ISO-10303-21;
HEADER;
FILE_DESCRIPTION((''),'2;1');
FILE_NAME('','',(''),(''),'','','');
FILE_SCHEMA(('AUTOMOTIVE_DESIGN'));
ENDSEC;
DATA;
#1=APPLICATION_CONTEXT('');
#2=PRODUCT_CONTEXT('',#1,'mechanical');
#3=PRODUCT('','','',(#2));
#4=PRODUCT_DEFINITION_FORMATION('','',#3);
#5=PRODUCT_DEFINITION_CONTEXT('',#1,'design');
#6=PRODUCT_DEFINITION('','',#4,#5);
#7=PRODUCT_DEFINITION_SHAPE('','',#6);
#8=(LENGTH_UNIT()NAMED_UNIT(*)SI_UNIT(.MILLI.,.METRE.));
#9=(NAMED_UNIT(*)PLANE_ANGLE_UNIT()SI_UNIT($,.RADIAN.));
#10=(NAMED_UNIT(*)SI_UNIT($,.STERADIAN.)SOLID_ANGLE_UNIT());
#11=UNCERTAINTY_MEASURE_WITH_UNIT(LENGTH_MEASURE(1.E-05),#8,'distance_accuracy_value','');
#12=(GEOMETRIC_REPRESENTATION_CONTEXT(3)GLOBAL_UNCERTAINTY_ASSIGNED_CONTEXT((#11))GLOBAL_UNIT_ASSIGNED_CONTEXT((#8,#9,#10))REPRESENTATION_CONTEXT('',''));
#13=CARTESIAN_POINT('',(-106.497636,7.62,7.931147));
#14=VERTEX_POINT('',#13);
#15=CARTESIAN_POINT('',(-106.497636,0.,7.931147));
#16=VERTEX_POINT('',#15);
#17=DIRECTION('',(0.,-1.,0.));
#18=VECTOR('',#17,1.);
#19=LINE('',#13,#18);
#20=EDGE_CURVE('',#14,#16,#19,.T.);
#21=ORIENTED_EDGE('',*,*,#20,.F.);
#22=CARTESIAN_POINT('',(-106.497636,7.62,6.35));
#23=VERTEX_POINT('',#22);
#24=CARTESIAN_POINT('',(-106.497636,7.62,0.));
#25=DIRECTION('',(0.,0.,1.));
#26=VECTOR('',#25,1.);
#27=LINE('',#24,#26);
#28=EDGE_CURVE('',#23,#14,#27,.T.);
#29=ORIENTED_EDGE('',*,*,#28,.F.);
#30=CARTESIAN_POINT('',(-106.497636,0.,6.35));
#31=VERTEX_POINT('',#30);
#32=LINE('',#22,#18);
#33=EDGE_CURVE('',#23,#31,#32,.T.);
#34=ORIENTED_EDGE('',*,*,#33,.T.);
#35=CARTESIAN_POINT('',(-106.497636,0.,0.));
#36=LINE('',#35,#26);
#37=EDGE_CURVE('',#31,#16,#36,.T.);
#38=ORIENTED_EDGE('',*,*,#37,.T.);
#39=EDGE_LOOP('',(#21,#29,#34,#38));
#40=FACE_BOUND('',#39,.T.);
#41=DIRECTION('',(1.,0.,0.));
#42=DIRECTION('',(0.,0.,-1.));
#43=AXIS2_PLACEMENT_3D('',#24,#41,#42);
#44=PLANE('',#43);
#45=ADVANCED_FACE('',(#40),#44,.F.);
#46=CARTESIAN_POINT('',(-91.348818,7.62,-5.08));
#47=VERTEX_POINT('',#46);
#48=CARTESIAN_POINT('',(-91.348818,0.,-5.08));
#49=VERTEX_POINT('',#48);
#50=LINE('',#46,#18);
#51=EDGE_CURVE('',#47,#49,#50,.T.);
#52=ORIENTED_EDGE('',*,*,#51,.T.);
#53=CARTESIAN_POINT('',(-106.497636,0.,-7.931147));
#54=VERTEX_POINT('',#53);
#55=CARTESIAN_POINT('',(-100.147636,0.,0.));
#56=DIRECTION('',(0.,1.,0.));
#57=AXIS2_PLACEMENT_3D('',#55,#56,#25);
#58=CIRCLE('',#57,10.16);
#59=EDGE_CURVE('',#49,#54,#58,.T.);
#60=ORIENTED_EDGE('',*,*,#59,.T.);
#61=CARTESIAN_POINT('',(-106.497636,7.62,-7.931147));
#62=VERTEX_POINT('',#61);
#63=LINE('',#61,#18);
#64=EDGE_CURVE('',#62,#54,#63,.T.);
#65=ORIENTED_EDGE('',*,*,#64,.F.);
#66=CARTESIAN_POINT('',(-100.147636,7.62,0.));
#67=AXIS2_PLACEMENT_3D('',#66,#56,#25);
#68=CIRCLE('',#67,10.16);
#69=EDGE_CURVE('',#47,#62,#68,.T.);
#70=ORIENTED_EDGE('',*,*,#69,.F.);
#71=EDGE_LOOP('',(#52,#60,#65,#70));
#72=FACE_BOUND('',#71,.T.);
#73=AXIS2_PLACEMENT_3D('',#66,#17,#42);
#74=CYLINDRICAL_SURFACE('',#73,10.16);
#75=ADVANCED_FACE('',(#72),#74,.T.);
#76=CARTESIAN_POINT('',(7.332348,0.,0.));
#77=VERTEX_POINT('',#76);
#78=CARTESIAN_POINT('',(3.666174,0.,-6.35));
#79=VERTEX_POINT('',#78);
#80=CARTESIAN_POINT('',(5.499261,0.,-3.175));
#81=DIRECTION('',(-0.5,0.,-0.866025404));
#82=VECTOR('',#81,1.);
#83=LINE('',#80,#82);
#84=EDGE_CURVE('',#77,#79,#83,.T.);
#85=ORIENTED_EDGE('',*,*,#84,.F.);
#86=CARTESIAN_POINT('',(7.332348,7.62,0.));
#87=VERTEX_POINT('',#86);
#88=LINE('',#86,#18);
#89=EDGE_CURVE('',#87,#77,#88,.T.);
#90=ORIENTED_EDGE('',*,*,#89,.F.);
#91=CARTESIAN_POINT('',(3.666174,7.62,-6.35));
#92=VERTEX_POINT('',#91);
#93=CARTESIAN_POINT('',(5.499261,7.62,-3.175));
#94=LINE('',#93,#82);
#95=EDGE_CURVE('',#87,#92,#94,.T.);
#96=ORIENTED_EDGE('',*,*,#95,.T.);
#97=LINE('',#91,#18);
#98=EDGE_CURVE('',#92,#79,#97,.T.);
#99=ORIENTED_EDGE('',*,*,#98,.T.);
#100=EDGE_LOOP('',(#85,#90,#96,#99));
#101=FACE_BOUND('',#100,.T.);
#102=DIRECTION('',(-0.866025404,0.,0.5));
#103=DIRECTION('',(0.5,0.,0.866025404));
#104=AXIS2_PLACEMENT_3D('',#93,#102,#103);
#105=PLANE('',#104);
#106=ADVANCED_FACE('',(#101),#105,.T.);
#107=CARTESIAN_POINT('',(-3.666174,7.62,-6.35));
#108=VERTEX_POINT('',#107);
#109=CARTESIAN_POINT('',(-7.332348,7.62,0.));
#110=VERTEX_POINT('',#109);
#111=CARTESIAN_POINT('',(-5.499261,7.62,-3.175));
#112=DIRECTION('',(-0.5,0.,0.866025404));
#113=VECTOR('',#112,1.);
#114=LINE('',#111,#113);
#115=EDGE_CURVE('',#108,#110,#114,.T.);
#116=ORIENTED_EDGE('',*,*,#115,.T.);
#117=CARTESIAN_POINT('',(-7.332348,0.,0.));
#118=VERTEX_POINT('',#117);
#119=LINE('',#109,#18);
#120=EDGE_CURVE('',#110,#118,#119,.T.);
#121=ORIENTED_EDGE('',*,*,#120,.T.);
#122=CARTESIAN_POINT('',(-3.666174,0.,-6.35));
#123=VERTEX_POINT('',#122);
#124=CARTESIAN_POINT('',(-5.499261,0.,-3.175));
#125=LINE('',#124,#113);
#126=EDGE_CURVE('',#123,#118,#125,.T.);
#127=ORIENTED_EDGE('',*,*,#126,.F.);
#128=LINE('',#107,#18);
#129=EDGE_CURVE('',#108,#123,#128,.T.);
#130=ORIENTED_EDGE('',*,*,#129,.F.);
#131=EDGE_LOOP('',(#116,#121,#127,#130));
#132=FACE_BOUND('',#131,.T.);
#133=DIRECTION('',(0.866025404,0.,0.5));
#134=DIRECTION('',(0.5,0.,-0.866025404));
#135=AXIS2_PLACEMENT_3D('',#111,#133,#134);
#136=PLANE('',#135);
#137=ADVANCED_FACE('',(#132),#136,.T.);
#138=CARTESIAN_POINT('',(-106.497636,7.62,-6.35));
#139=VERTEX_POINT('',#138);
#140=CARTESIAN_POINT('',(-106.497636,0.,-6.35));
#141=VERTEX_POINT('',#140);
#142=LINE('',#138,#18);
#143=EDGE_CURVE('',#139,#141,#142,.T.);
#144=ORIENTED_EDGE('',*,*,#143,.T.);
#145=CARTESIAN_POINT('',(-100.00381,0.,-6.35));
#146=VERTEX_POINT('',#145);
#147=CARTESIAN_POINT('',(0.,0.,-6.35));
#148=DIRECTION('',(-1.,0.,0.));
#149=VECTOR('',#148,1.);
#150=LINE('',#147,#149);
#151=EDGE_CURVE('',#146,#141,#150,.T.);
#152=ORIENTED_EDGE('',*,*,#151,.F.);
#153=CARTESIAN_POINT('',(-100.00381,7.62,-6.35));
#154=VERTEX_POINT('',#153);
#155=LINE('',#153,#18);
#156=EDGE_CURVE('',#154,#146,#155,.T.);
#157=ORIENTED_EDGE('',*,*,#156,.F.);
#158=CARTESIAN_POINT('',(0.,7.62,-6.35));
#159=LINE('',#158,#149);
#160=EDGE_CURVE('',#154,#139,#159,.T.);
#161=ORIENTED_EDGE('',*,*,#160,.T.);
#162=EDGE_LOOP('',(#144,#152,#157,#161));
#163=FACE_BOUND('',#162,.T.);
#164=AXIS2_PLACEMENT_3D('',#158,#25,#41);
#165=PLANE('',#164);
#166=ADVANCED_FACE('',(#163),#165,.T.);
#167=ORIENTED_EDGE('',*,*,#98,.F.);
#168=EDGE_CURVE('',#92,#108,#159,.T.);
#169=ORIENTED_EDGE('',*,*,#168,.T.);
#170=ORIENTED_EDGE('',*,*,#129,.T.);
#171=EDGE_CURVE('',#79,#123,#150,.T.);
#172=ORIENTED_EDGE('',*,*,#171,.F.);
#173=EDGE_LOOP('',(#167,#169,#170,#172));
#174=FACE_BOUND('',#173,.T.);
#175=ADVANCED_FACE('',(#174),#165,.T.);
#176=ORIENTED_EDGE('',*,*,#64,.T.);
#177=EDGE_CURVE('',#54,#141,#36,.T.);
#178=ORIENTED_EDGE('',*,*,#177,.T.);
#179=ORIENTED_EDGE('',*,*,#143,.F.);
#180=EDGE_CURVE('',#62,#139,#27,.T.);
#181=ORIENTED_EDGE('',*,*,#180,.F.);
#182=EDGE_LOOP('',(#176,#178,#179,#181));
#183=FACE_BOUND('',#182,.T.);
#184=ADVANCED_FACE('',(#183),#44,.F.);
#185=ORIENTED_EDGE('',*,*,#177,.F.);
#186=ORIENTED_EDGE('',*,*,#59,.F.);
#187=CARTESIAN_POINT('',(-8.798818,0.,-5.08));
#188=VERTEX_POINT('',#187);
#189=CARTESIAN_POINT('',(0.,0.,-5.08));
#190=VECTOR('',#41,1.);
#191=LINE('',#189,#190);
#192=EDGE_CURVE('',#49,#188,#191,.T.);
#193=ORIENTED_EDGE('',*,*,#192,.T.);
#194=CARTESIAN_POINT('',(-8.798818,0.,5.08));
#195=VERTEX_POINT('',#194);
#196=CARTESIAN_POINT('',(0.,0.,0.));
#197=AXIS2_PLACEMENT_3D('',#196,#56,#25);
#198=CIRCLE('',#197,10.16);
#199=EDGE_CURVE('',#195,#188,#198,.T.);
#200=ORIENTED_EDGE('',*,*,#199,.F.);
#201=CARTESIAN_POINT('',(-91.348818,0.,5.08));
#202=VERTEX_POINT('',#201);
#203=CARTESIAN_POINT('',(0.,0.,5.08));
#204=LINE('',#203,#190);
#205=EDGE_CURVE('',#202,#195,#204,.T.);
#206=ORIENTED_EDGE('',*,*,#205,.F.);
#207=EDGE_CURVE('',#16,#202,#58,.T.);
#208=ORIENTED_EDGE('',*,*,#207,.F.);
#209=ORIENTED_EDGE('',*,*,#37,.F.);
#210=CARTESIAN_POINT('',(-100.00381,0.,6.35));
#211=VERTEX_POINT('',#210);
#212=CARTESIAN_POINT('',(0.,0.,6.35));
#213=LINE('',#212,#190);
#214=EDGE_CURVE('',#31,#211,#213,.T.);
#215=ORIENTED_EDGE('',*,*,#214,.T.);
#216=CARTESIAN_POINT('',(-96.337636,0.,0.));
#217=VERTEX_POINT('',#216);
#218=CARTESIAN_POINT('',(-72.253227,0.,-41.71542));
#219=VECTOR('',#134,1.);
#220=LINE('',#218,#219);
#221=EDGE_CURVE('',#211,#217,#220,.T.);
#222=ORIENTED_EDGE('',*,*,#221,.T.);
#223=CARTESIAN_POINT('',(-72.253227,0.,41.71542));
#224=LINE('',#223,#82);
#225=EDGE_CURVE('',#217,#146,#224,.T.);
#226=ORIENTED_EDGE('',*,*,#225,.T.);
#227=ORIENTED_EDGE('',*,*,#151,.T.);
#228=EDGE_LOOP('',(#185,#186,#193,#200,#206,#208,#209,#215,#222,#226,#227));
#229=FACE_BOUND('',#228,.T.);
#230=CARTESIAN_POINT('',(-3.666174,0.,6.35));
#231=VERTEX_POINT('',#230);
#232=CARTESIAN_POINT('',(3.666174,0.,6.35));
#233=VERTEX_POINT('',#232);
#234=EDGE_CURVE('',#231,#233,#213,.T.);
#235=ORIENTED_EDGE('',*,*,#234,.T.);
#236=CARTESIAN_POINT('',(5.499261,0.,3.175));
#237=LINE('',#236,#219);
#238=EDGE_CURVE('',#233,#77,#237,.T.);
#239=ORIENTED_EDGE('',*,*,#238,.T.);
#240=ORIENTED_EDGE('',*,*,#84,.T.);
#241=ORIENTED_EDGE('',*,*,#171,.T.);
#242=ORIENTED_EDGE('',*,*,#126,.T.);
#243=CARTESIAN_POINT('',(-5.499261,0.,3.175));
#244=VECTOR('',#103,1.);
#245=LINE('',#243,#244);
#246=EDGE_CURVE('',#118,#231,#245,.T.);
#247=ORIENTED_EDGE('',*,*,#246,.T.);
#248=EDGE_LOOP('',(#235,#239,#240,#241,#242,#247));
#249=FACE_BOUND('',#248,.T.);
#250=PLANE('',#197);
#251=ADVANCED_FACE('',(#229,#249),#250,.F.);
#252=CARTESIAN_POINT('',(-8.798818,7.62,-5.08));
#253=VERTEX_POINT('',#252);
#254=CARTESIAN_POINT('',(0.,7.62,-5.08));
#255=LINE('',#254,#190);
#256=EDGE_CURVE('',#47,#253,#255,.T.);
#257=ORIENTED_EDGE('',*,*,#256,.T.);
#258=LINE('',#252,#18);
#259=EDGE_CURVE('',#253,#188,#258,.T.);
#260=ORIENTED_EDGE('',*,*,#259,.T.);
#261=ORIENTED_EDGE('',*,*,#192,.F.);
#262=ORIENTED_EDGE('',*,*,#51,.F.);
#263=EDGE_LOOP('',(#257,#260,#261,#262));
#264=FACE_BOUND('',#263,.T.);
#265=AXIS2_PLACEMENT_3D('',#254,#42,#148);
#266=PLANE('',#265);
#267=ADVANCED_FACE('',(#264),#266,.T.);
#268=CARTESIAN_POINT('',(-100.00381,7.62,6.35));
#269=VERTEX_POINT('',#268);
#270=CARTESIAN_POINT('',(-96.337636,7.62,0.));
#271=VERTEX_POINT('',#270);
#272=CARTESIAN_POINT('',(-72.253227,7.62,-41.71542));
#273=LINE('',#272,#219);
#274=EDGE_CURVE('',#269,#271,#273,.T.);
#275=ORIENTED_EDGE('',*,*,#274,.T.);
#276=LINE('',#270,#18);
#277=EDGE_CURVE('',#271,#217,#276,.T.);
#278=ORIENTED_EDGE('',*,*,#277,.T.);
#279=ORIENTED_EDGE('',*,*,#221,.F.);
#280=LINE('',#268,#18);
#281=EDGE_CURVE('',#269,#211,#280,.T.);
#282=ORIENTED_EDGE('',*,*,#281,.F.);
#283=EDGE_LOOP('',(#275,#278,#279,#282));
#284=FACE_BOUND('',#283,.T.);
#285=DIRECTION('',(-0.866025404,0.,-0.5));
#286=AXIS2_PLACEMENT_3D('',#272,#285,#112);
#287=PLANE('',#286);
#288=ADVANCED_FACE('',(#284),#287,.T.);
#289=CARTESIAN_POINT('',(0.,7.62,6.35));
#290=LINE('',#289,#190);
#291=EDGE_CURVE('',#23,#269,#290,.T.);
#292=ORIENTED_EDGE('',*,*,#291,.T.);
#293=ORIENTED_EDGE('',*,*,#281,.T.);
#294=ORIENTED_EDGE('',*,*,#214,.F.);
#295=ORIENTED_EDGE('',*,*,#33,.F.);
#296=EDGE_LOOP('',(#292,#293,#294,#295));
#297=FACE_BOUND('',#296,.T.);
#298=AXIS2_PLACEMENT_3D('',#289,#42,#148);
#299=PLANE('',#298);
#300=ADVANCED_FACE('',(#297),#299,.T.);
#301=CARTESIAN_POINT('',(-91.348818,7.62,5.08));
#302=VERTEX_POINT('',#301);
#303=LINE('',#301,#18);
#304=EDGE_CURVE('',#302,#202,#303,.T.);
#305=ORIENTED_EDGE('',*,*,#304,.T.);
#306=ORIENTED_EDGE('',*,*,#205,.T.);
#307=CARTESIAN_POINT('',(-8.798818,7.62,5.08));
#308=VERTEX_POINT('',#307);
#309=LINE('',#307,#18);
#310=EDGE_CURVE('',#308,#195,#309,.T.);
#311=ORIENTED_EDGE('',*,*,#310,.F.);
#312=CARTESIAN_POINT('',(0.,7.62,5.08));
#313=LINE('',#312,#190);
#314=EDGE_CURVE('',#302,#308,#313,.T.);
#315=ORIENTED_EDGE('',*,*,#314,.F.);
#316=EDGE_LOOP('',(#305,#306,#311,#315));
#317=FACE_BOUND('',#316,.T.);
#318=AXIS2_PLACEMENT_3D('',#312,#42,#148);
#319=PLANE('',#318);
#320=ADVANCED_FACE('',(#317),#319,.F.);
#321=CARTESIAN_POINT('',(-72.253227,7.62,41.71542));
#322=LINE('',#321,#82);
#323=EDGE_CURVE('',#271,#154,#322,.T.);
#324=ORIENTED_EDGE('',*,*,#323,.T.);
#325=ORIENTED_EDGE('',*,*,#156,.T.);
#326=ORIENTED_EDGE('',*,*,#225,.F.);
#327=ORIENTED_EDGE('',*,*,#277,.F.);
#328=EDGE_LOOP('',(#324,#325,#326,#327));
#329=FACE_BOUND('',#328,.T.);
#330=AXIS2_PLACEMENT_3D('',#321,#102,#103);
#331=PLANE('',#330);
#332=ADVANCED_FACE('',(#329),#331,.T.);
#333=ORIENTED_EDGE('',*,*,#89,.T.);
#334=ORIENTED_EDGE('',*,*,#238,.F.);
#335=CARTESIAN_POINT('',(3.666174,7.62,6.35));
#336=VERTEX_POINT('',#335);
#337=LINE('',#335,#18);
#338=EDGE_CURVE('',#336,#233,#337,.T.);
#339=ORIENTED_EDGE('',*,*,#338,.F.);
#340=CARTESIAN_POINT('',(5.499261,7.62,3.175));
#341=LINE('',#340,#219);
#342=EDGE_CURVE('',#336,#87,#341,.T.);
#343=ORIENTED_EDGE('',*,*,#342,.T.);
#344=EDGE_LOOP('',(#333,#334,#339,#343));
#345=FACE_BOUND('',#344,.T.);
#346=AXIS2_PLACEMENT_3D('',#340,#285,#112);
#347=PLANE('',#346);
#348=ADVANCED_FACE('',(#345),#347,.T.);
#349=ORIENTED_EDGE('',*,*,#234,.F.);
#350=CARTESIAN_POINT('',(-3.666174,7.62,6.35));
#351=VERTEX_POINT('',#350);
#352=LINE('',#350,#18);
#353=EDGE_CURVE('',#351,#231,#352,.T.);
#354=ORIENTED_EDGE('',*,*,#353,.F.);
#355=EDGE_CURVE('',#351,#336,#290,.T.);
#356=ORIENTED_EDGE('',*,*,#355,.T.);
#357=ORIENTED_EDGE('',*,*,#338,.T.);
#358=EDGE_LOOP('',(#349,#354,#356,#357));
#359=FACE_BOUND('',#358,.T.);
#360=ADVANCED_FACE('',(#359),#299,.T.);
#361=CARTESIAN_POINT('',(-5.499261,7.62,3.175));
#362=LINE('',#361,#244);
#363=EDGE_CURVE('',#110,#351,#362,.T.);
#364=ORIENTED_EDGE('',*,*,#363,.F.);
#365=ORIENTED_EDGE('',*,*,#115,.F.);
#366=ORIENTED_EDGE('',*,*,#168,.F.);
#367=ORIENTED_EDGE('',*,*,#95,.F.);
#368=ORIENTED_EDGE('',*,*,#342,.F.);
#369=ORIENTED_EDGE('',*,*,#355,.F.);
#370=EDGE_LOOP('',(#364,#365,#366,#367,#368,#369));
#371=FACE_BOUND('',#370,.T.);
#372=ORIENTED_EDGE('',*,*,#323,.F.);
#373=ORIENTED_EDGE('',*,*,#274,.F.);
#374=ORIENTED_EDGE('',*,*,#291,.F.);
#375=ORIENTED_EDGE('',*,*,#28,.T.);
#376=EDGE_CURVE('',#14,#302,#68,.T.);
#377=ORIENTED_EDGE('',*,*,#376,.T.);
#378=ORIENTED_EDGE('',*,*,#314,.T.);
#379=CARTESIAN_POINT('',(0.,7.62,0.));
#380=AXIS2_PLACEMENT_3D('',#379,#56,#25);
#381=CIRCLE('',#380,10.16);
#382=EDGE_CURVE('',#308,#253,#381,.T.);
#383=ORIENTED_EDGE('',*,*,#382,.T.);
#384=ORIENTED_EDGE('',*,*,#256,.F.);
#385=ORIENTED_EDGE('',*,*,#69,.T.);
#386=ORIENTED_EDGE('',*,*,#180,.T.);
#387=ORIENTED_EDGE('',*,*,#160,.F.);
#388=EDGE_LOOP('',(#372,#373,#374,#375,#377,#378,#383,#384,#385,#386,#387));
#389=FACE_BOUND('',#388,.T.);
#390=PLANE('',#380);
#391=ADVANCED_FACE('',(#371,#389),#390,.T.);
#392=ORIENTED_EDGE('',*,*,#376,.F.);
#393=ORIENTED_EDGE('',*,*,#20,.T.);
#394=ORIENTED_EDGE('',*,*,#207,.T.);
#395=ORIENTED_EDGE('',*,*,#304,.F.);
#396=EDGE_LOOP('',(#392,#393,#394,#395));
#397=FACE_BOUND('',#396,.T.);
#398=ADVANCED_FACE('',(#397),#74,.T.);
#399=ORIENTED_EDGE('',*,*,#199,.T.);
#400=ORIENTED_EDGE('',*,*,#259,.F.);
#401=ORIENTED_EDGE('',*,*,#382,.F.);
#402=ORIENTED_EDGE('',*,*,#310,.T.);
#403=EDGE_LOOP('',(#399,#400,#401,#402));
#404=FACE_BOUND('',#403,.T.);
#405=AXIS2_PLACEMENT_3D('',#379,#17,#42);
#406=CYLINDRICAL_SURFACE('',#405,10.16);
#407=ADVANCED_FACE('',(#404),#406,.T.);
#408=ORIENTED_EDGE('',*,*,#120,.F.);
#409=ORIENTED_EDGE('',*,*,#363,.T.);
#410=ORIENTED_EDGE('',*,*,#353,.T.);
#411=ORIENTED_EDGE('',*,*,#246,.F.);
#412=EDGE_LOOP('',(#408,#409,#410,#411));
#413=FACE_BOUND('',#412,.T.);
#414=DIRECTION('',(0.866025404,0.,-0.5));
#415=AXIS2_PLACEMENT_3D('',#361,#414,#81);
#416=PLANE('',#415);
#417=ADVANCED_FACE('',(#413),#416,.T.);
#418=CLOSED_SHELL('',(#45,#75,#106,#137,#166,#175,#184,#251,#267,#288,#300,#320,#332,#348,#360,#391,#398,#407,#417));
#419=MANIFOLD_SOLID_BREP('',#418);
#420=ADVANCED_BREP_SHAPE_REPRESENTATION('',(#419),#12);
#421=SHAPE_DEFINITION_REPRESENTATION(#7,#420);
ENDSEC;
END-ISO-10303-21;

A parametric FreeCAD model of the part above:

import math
import FreeCAD as App
import Part
import Sketcher

V = App.Vector
Q = App.Units.Quantity

doc = App.newDocument("Part")
params = doc.addObject("Spreadsheet::Sheet", "Params")
for row, (alias, value) in enumerate([
    ("sketch1_radius", "0.4 in"),
    ("sketch1_width", "3.25 in"),
    ("sketch1_width2", "0.25 in"),
    ("pad1_length", "0.3 in"),
], start=1):
    params.set(f"A{row}", alias)
    params.set(f"B{row}", "=" + value)
    params.setAlias(f"B{row}", alias)

body = doc.addObject("PartDesign::Body", "Body")

# Sketch on XZ plane
sketch1 = body.newObject("Sketcher::SketchObject", "Sketch")
sketch1.AttachmentSupport = (doc.getObject("XZ_Plane"), [""])
sketch1.MapMode = "FlatFace"
sketch1.addGeometry([
    Part.LineSegment(V(-8.8, -5.1, 0), V(-91.3, -5.1, 0)),  # 0
    Part.ArcOfCircle(Part.Circle(V(-100.1, 0, 0), V(0, 0, 1), 10.2), math.radians(-129), math.radians(-30)),  # 1
    Part.LineSegment(V(-106.5, -7.9, 0), V(-106.5, -6.3, 0)),  # 2
    Part.LineSegment(V(-106.5, -6.3, 0), V(-100, -6.3, 0)),  # 3
    Part.LineSegment(V(-100, -6.3, 0), V(-96.3, 0, 0)),  # 4
    Part.LineSegment(V(-96.3, 0, 0), V(-100, 6.3, 0)),  # 5
    Part.LineSegment(V(-100, 6.3, 0), V(-106.5, 6.3, 0)),  # 6
    Part.LineSegment(V(-106.5, 6.3, 0), V(-106.5, 7.9, 0)),  # 7
    Part.ArcOfCircle(Part.Circle(V(-100.1, 0, 0), V(0, 0, 1), 10.2), math.radians(30), math.radians(129)),  # 8
    Part.LineSegment(V(-91.3, 5.1, 0), V(-8.8, 5.1, 0)),  # 9
    Part.ArcOfCircle(Part.Circle(V(0, 0, 0), V(0, 0, 1), 10.2), math.radians(-150), math.radians(150)),  # 10
    Part.LineSegment(V(7.3, 0, 0), V(3.7, 6.3, 0)),  # 11
    Part.LineSegment(V(3.7, 6.3, 0), V(-3.7, 6.3, 0)),  # 12
    Part.LineSegment(V(-3.7, 6.3, 0), V(-7.3, 0, 0)),  # 13
    Part.LineSegment(V(-7.3, 0, 0), V(-3.7, -6.3, 0)),  # 14
    Part.LineSegment(V(-3.7, -6.3, 0), V(3.7, -6.3, 0)),  # 15
    Part.LineSegment(V(3.7, -6.3, 0), V(7.3, 0, 0)),  # 16
], False)
sketch1.addConstraint([
    Sketcher.Constraint("Coincident", 0, 2, 1, 2),
    Sketcher.Constraint("Coincident", 1, 1, 2, 1),
    Sketcher.Constraint("Coincident", 2, 2, 3, 1),
    Sketcher.Constraint("Coincident", 3, 2, 4, 1),
    Sketcher.Constraint("Coincident", 4, 2, 5, 1),
    Sketcher.Constraint("Coincident", 5, 2, 6, 1),
    Sketcher.Constraint("Coincident", 6, 2, 7, 1),
    Sketcher.Constraint("Coincident", 7, 2, 8, 2),
    Sketcher.Constraint("Coincident", 8, 1, 9, 1),
    Sketcher.Constraint("Coincident", 9, 2, 10, 2),
    Sketcher.Constraint("Coincident", 10, 1, 0, 1),
    Sketcher.Constraint("Coincident", 11, 2, 12, 1),
    Sketcher.Constraint("Coincident", 12, 2, 13, 1),
    Sketcher.Constraint("Coincident", 13, 2, 14, 1),
    Sketcher.Constraint("Coincident", 14, 2, 15, 1),
    Sketcher.Constraint("Coincident", 15, 2, 16, 1),
    Sketcher.Constraint("Coincident", 16, 2, 11, 1),
    Sketcher.Constraint("Horizontal", 0),
    Sketcher.Constraint("Vertical", 2),
    Sketcher.Constraint("Horizontal", 3),
    Sketcher.Constraint("Horizontal", 6),
    Sketcher.Constraint("Vertical", 7),
    Sketcher.Constraint("Horizontal", 9),
    Sketcher.Constraint("Horizontal", 12),
    Sketcher.Constraint("Horizontal", 15),
    Sketcher.Constraint("Coincident", 10, 3, -1, 1),
    Sketcher.Constraint("Coincident", 8, 3, 1, 3),
    Sketcher.Constraint("Equal", 1, 8),
    Sketcher.Constraint("Equal", 8, 10),
    Sketcher.Constraint("Symmetric", 11, 2, 14, 2, -1, 1),
    Sketcher.Constraint("Symmetric", 13, 2, 16, 2, -1, 1),
    Sketcher.Constraint("Symmetric", 3, 2, 5, 2, -1),
    Sketcher.Constraint("Symmetric", 1, 1, 7, 2, -1),
    Sketcher.Constraint("PointOnObject", 4, 2, -1),
    Sketcher.Constraint("PointOnObject", 13, 2, -1),
    Sketcher.Constraint("Parallel", 5, 11),
    Sketcher.Constraint("Parallel", 4, 13),
    Sketcher.Constraint("Parallel", 13, 16),
    Sketcher.Constraint("Horizontal", 6, 2, 11, 2),
    Sketcher.Constraint("Vertical", 0, 2, 8, 1),
    Sketcher.Constraint("Radius", 1, Q("0.4 in")),
    Sketcher.Constraint("Angle", 4, Q("60 deg")),
    Sketcher.Constraint("DistanceX", 0, 2, 0, 1, Q("3.25 in")),
    Sketcher.Constraint("DistanceY", 0, 2, -1, 1, Q("0.2 in")),
    Sketcher.Constraint("DistanceX", 2, 2, 4, 2, Q("0.4 in")),
    Sketcher.Constraint("DistanceY", 3, 2, 5, 2, Q("0.5 in")),
    Sketcher.Constraint("DistanceX", 1, 1, 1, 3, Q("0.25 in")),
    Sketcher.Constraint("DistanceX", 12, 2, 12, 1, Q("7.332348 mm")),
])
sketch1.setExpression("Constraints[40]", "Params.sketch1_radius")
sketch1.setExpression("Constraints[42]", "Params.sketch1_width")
sketch1.setExpression("Constraints[46]", "Params.sketch1_width2")
pad1 = body.newObject("PartDesign::Pad", "Pad")
pad1.Profile = sketch1
pad1.setExpression("Length", "Params.pad1_length")
pad1.Reversed = True

doc.recompute()
